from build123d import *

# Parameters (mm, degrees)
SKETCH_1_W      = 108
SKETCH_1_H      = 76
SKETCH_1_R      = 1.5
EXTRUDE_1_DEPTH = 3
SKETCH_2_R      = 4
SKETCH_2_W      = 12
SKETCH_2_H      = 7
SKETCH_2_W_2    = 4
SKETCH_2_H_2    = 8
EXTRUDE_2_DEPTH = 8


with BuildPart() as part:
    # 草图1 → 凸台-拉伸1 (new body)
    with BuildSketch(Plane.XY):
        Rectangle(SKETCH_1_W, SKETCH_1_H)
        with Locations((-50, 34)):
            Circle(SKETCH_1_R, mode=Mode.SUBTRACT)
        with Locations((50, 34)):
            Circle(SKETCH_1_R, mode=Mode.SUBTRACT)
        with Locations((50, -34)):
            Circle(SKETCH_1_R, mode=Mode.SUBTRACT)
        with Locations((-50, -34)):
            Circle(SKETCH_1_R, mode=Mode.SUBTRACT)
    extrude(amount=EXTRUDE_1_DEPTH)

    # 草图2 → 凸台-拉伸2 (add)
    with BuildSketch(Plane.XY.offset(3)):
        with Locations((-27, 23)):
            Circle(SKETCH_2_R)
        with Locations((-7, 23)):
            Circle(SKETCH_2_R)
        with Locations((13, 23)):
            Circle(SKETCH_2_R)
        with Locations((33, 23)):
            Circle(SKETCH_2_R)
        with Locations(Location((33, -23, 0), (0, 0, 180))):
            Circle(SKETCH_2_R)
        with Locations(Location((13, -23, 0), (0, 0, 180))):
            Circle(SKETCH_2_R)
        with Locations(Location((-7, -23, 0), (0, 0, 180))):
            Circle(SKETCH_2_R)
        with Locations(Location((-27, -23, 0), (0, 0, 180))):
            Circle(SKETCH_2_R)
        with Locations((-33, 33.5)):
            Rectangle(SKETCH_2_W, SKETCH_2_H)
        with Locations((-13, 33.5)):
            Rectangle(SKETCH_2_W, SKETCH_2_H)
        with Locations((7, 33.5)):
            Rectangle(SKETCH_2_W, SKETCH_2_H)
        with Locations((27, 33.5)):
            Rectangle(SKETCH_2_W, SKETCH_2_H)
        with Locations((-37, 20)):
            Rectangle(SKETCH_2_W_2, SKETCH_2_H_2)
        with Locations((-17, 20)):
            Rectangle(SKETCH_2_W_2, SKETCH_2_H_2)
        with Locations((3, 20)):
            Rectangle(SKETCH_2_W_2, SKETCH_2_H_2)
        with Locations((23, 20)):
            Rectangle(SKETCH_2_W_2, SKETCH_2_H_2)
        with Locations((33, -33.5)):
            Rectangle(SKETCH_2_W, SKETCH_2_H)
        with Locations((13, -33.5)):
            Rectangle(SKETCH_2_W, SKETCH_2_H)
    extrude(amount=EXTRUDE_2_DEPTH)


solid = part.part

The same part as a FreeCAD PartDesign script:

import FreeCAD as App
import Part
import Sketcher

V = App.Vector

doc = App.newDocument("Part")
body = doc.addObject("PartDesign::Body", "Body")

# Sketch on XY plane
sketch1 = doc.addObject("Sketcher::SketchObject", "Sketch")
body.addObject(sketch1)
sketch1.AttachmentSupport = (doc.XY_Plane, [""])
sketch1.MapMode = "FlatFace"
sketch1.addGeometry([
    Part.LineSegment(V(-54, 38, 0), V(-54, -38, 0)),  # 0
    Part.LineSegment(V(-54, -38, 0), V(54, -38, 0)),  # 1
    Part.LineSegment(V(54, -38, 0), V(54, 38, 0)),  # 2
    Part.LineSegment(V(54, 38, 0), V(-54, 38, 0)),  # 3
    Part.Circle(V(-50, -34, 0), V(0, 0, 1), 1.5),  # 4
    Part.Circle(V(50, -34, 0), V(0, 0, 1), 1.5),  # 5
    Part.Circle(V(-50, 34, 0), V(0, 0, 1), 1.5),  # 6
    Part.Circle(V(50, 34, 0), V(0, 0, 1), 1.5),  # 7
], False)
sketch1.addConstraint([
    Sketcher.Constraint("Coincident", 0, 2, 1, 1),
    Sketcher.Constraint("Coincident", 1, 2, 2, 1),
    Sketcher.Constraint("Coincident", 2, 2, 3, 1),
    Sketcher.Constraint("Coincident", 3, 2, 0, 1),
    Sketcher.Constraint("Vertical", 0),
    Sketcher.Constraint("Horizontal", 1),
    Sketcher.Constraint("Vertical", 2),
    Sketcher.Constraint("Horizontal", 3),
    Sketcher.Constraint("Equal", 4, 5),
    Sketcher.Constraint("Equal", 5, 6),
    Sketcher.Constraint("Equal", 6, 7),
    Sketcher.Constraint("Symmetric", 5, 3, 6, 3, -1, 1),
    Sketcher.Constraint("Symmetric", 4, 3, 7, 3, -1, 1),
    Sketcher.Constraint("Symmetric", 0, 2, 2, 2, -1, 1),
    Sketcher.Constraint("Symmetric", 4, 3, 5, 3, -2),
    Sketcher.Constraint("Diameter", 4, 3.0),
    Sketcher.Constraint("DistanceX", 1, 1, 1, 2, 108.0),
    Sketcher.Constraint("DistanceY", 0, 2, 0, 1, 76.0),
    Sketcher.Constraint("DistanceX", 4, 3, -1, 1, 50.0),
    Sketcher.Constraint("DistanceY", 4, 3, -1, 1, 34.0),
])
pad1 = doc.addObject("PartDesign::Pad", "Pad")
body.addObject(pad1)
pad1.Profile = sketch1
pad1.Length = 3

# Sketch on XY plane
sketch2 = doc.addObject("Sketcher::SketchObject", "Sketch001")
body.addObject(sketch2)
sketch2.AttachmentSupport = (doc.XY_Plane, [""])
sketch2.MapMode = "FlatFace"
sketch2.AttachmentOffset = App.Placement(V(0, 0, 3), App.Rotation())
sketch2.addGeometry([
    Part.Circle(V(-27, 23, 0), V(0, 0, 1), 4),  # 0
    Part.Circle(V(-7, 23, 0), V(0, 0, 1), 4),  # 1
    Part.Circle(V(13, 23, 0), V(0, 0, 1), 4),  # 2
    Part.Circle(V(33, 23, 0), V(0, 0, 1), 4),  # 3
    Part.Circle(V(33, -23, 0), V(0, 0, 1), 4),  # 4
    Part.Circle(V(13, -23, 0), V(0, 0, 1), 4),  # 5
    Part.Circle(V(-7, -23, 0), V(0, 0, 1), 4),  # 6
    Part.Circle(V(-27, -23, 0), V(0, 0, 1), 4),  # 7
    Part.LineSegment(V(-39, 37, 0), V(-39, 30, 0)),  # 8
    Part.LineSegment(V(-39, 30, 0), V(-27, 30, 0)),  # 9
    Part.LineSegment(V(-27, 30, 0), V(-27, 37, 0)),  # 10
    Part.LineSegment(V(-27, 37, 0), V(-39, 37, 0)),  # 11
    Part.LineSegment(V(-19, 37, 0), V(-19, 30, 0)),  # 12
    Part.LineSegment(V(-19, 30, 0), V(-7, 30, 0)),  # 13
    Part.LineSegment(V(-7, 30, 0), V(-7, 37, 0)),  # 14
    Part.LineSegment(V(-7, 37, 0), V(-19, 37, 0)),  # 15
    Part.LineSegment(V(1, 37, 0), V(1, 30, 0)),  # 16
    Part.LineSegment(V(1, 30, 0), V(13, 30, 0)),  # 17
    Part.LineSegment(V(13, 30, 0), V(13, 37, 0)),  # 18
    Part.LineSegment(V(13, 37, 0), V(1, 37, 0)),  # 19
    Part.LineSegment(V(21, 37, 0), V(21, 30, 0)),  # 20
    Part.LineSegment(V(21, 30, 0), V(33, 30, 0)),  # 21
    Part.LineSegment(V(33, 30, 0), V(33, 37, 0)),  # 22
    Part.LineSegment(V(33, 37, 0), V(21, 37, 0)),  # 23
    Part.LineSegment(V(-39, 24, 0), V(-39, 16, 0)),  # 24
    Part.LineSegment(V(-39, 16, 0), V(-35, 16, 0)),  # 25
    Part.LineSegment(V(-35, 16, 0), V(-35, 24, 0)),  # 26
    Part.LineSegment(V(-35, 24, 0), V(-39, 24, 0)),  # 27
    Part.LineSegment(V(-19, 24, 0), V(-19, 16, 0)),  # 28
    Part.LineSegment(V(-19, 16, 0), V(-15, 16, 0)),  # 29
    Part.LineSegment(V(-15, 16, 0), V(-15, 24, 0)),  # 30
    Part.LineSegment(V(-15, 24, 0), V(-19, 24, 0)),  # 31
    Part.LineSegment(V(1, 24, 0), V(1, 16, 0)),  # 32
    Part.LineSegment(V(1, 16, 0), V(5, 16, 0)),  # 33
    Part.LineSegment(V(5, 16, 0), V(5, 24, 0)),  # 34
    Part.LineSegment(V(5, 24, 0), V(1, 24, 0)),  # 35
    Part.LineSegment(V(21, 24, 0), V(21, 16, 0)),  # 36
    Part.LineSegment(V(21, 16, 0), V(25, 16, 0)),  # 37
    Part.LineSegment(V(25, 16, 0), V(25, 24, 0)),  # 38
    Part.LineSegment(V(25, 24, 0), V(21, 24, 0)),  # 39
    Part.LineSegment(V(27, -30, 0), V(27, -37, 0)),  # 40
    Part.LineSegment(V(27, -37, 0), V(39, -37, 0)),  # 41
    Part.LineSegment(V(39, -37, 0), V(39, -30, 0)),  # 42
    Part.LineSegment(V(39, -30, 0), V(27, -30, 0)),  # 43
    Part.LineSegment(V(7, -30, 0), V(7, -37, 0)),  # 44
    Part.LineSegment(V(7, -37, 0), V(19, -37, 0)),  # 45
    Part.LineSegment(V(19, -37, 0), V(19, -30, 0)),  # 46
    Part.LineSegment(V(19, -30, 0), V(7, -30, 0)),  # 47
], False)
sketch2.addConstraint([
    Sketcher.Constraint("Coincident", 8, 2, 9, 1),
    Sketcher.Constraint("Coincident", 9, 2, 10, 1),
    Sketcher.Constraint("Coincident", 10, 2, 11, 1),
    Sketcher.Constraint("Coincident", 11, 2, 8, 1),
    Sketcher.Constraint("Coincident", 12, 2, 13, 1),
    Sketcher.Constraint("Coincident", 13, 2, 14, 1),
    Sketcher.Constraint("Coincident", 14, 2, 15, 1),
    Sketcher.Constraint("Coincident", 15, 2, 12, 1),
    Sketcher.Constraint("Coincident", 16, 2, 17, 1),
    Sketcher.Constraint("Coincident", 17, 2, 18, 1),
    Sketcher.Constraint("Coincident", 18, 2, 19, 1),
    Sketcher.Constraint("Coincident", 19, 2, 16, 1),
    Sketcher.Constraint("Coincident", 20, 2, 21, 1),
    Sketcher.Constraint("Coincident", 21, 2, 22, 1),
    Sketcher.Constraint("Coincident", 22, 2, 23, 1),
    Sketcher.Constraint("Coincident", 23, 2, 20, 1),
    Sketcher.Constraint("Coincident", 24, 2, 25, 1),
    Sketcher.Constraint("Coincident", 25, 2, 26, 1),
    Sketcher.Constraint("Coincident", 26, 2, 27, 1),
    Sketcher.Constraint("Coincident", 27, 2, 24, 1),
    Sketcher.Constraint("Coincident", 28, 2, 29, 1),
    Sketcher.Constraint("Coincident", 29, 2, 30, 1),
    Sketcher.Constraint("Coincident", 30, 2, 31, 1),
    Sketcher.Constraint("Coincident", 31, 2, 28, 1),
    Sketcher.Constraint("Coincident", 32, 2, 33, 1),
    Sketcher.Constraint("Coincident", 33, 2, 34, 1),
    Sketcher.Constraint("Coincident", 34, 2, 35, 1),
    Sketcher.Constraint("Coincident", 35, 2, 32, 1),
    Sketcher.Constraint("Coincident", 36, 2, 37, 1),
    Sketcher.Constraint("Coincident", 37, 2, 38, 1),
    Sketcher.Constraint("Coincident", 38, 2, 39, 1),
    Sketcher.Constraint("Coincident", 39, 2, 36, 1),
    Sketcher.Constraint("Coincident", 40, 2, 41, 1),
    Sketcher.Constraint("Coincident", 41, 2, 42, 1),
    Sketcher.Constraint("Coincident", 42, 2, 43, 1),
    Sketcher.Constraint("Coincident", 43, 2, 40, 1),
    Sketcher.Constraint("Coincident", 44, 2, 45, 1),
    Sketcher.Constraint("Coincident", 45, 2, 46, 1),
    Sketcher.Constraint("Coincident", 46, 2, 47, 1),
    Sketcher.Constraint("Coincident", 47, 2, 44, 1),
    Sketcher.Constraint("Vertical", 8),
    Sketcher.Constraint("Horizontal", 9),
    Sketcher.Constraint("Vertical", 10),
    Sketcher.Constraint("Horizontal", 11),
    Sketcher.Constraint("Vertical", 12),
    Sketcher.Constraint("Horizontal", 13),
    Sketcher.Constraint("Vertical", 14),
    Sketcher.Constraint("Horizontal", 15),
    Sketcher.Constraint("Vertical", 16),
    Sketcher.Constraint("Horizontal", 17),
    Sketcher.Constraint("Vertical", 18),
    Sketcher.Constraint("Horizontal", 19),
    Sketcher.Constraint("Vertical", 20),
    Sketcher.Constraint("Horizontal", 21),
    Sketcher.Constraint("Vertical", 22),
    Sketcher.Constraint("Horizontal", 23),
    Sketcher.Constraint("Vertical", 24),
    Sketcher.Constraint("Horizontal", 25),
    Sketcher.Constraint("Vertical", 26),
    Sketcher.Constraint("Horizontal", 27),
    Sketcher.Constraint("Vertical", 28),
    Sketcher.Constraint("Horizontal", 29),
    Sketcher.Constraint("Vertical", 30),
    Sketcher.Constraint("Horizontal", 31),
    Sketcher.Constraint("Vertical", 32),
    Sketcher.Constraint("Horizontal", 33),
    Sketcher.Constraint("Vertical", 34),
    Sketcher.Constraint("Horizontal", 35),
    Sketcher.Constraint("Vertical", 36),
    Sketcher.Constraint("Horizontal", 37),
    Sketcher.Constraint("Vertical", 38),
    Sketcher.Constraint("Horizontal", 39),
    Sketcher.Constraint("Vertical", 40),
    Sketcher.Constraint("Horizontal", 41),
    Sketcher.Constraint("Vertical", 42),
    Sketcher.Constraint("Horizontal", 43),
    Sketcher.Constraint("Vertical", 44),
    Sketcher.Constraint("Horizontal", 45),
    Sketcher.Constraint("Vertical", 46),
    Sketcher.Constraint("Horizontal", 47),
    Sketcher.Constraint("Equal", 0, 1),
    Sketcher.Constraint("Equal", 1, 2),
    Sketcher.Constraint("Equal", 2, 3),
    Sketcher.Constraint("Equal", 3, 4),
    Sketcher.Constraint("Equal", 4, 5),
    Sketcher.Constraint("Equal", 5, 6),
    Sketcher.Constraint("Equal", 6, 7),
    Sketcher.Constraint("Symmetric", 10, 2, 40, 2, -1, 1),
    Sketcher.Constraint("Symmetric", 8, 2, 42, 2, -1, 1),
    Sketcher.Constraint("Symmetric", 14, 2, 44, 2, -1, 1),
    Sketcher.Constraint("Symmetric", 12, 2, 46, 2, -1, 1),
    Sketcher.Constraint("Symmetric", 3, 3, 4, 3, -1),
    Sketcher.Constraint("Symmetric", 2, 3, 5, 3, -1),
    Sketcher.Constraint("Symmetric", 1, 3, 6, 3, -1),
    Sketcher.Constraint("Symmetric", 0, 3, 7, 3, -1),
    Sketcher.Constraint("Horizontal", 0, 3, 1, 3),
    Sketcher.Constraint("Horizontal", 1, 3, 2, 3),
    Sketcher.Constraint("Horizontal", 2, 3, 3, 3),
    Sketcher.Constraint("Horizontal", 9, 2, 12, 2),
    Sketcher.Constraint("Horizontal", 11, 2, 14, 2),
    Sketcher.Constraint("Horizontal", 13, 2, 16, 2),
    Sketcher.Constraint("Horizontal", 15, 2, 18, 2),
    Sketcher.Constraint("Horizontal", 17, 2, 20, 2),
    Sketcher.Constraint("Horizontal", 19, 2, 22, 2),
    Sketcher.Constraint("Horizontal", 25, 2, 28, 2),
    Sketcher.Constraint("Horizontal", 27, 2, 30, 2),
    Sketcher.Constraint("Horizontal", 29, 2, 32, 2),
    Sketcher.Constraint("Horizontal", 31, 2, 34, 2),
    Sketcher.Constraint("Horizontal", 33, 2, 36, 2),
    Sketcher.Constraint("Horizontal", 35, 2, 38, 2),
    Sketcher.Constraint("Vertical", 7, 3, 9, 2),
    Sketcher.Constraint("Vertical", 6, 3, 13, 2),
    Sketcher.Constraint("Vertical", 5, 3, 17, 2),
    Sketcher.Constraint("Vertical", 4, 3, 21, 2),
    Sketcher.Constraint("Vertical", 11, 2, 24, 2),
    Sketcher.Constraint("Vertical", 15, 2, 28, 2),
    Sketcher.Constraint("Vertical", 19, 2, 32, 2),
    Sketcher.Constraint("Vertical", 23, 2, 36, 2),
    Sketcher.Constraint("Equal", 11, 13),
    Sketcher.Constraint("Equal", 15, 17),
    Sketcher.Constraint("Equal", 19, 21),
    Sketcher.Constraint("Equal", 27, 29),
    Sketcher.Constraint("Equal", 31, 33),
    Sketcher.Constraint("Equal", 35, 37),
    Sketcher.Constraint("Diameter", 0, 8.0),
    Sketcher.Constraint("DistanceX", 9, 1, 9, 2, 12.0),
    Sketcher.Constraint("DistanceX", 25, 1, 25, 2, 4.0),
    Sketcher.Constraint("DistanceY", 8, 2, 8, 1, 7.0),
    Sketcher.Constraint("DistanceY", 24, 2, 24, 1, 8.0),
    Sketcher.Constraint("DistanceX", 0, 3, -1, 1, 27.0),
    Sketcher.Constraint("DistanceY", -1, 1, 0, 3, 23.0),
    Sketcher.Constraint("DistanceX", 1, 3, -1, 1, 7.0),
    Sketcher.Constraint("DistanceX", -1, 1, 2, 3, 13.0),
    Sketcher.Constraint("DistanceX", -1, 1, 3, 3, 33.0),
    Sketcher.Constraint("DistanceY", -1, 1, 8, 2, 30.0),
    Sketcher.Constraint("DistanceY", -1, 1, 24, 2, 16.0),
])
pad2 = doc.addObject("PartDesign::Pad", "Pad001")
body.addObject(pad2)
pad2.Profile = sketch2
pad2.Length = 8

doc.recompute()
